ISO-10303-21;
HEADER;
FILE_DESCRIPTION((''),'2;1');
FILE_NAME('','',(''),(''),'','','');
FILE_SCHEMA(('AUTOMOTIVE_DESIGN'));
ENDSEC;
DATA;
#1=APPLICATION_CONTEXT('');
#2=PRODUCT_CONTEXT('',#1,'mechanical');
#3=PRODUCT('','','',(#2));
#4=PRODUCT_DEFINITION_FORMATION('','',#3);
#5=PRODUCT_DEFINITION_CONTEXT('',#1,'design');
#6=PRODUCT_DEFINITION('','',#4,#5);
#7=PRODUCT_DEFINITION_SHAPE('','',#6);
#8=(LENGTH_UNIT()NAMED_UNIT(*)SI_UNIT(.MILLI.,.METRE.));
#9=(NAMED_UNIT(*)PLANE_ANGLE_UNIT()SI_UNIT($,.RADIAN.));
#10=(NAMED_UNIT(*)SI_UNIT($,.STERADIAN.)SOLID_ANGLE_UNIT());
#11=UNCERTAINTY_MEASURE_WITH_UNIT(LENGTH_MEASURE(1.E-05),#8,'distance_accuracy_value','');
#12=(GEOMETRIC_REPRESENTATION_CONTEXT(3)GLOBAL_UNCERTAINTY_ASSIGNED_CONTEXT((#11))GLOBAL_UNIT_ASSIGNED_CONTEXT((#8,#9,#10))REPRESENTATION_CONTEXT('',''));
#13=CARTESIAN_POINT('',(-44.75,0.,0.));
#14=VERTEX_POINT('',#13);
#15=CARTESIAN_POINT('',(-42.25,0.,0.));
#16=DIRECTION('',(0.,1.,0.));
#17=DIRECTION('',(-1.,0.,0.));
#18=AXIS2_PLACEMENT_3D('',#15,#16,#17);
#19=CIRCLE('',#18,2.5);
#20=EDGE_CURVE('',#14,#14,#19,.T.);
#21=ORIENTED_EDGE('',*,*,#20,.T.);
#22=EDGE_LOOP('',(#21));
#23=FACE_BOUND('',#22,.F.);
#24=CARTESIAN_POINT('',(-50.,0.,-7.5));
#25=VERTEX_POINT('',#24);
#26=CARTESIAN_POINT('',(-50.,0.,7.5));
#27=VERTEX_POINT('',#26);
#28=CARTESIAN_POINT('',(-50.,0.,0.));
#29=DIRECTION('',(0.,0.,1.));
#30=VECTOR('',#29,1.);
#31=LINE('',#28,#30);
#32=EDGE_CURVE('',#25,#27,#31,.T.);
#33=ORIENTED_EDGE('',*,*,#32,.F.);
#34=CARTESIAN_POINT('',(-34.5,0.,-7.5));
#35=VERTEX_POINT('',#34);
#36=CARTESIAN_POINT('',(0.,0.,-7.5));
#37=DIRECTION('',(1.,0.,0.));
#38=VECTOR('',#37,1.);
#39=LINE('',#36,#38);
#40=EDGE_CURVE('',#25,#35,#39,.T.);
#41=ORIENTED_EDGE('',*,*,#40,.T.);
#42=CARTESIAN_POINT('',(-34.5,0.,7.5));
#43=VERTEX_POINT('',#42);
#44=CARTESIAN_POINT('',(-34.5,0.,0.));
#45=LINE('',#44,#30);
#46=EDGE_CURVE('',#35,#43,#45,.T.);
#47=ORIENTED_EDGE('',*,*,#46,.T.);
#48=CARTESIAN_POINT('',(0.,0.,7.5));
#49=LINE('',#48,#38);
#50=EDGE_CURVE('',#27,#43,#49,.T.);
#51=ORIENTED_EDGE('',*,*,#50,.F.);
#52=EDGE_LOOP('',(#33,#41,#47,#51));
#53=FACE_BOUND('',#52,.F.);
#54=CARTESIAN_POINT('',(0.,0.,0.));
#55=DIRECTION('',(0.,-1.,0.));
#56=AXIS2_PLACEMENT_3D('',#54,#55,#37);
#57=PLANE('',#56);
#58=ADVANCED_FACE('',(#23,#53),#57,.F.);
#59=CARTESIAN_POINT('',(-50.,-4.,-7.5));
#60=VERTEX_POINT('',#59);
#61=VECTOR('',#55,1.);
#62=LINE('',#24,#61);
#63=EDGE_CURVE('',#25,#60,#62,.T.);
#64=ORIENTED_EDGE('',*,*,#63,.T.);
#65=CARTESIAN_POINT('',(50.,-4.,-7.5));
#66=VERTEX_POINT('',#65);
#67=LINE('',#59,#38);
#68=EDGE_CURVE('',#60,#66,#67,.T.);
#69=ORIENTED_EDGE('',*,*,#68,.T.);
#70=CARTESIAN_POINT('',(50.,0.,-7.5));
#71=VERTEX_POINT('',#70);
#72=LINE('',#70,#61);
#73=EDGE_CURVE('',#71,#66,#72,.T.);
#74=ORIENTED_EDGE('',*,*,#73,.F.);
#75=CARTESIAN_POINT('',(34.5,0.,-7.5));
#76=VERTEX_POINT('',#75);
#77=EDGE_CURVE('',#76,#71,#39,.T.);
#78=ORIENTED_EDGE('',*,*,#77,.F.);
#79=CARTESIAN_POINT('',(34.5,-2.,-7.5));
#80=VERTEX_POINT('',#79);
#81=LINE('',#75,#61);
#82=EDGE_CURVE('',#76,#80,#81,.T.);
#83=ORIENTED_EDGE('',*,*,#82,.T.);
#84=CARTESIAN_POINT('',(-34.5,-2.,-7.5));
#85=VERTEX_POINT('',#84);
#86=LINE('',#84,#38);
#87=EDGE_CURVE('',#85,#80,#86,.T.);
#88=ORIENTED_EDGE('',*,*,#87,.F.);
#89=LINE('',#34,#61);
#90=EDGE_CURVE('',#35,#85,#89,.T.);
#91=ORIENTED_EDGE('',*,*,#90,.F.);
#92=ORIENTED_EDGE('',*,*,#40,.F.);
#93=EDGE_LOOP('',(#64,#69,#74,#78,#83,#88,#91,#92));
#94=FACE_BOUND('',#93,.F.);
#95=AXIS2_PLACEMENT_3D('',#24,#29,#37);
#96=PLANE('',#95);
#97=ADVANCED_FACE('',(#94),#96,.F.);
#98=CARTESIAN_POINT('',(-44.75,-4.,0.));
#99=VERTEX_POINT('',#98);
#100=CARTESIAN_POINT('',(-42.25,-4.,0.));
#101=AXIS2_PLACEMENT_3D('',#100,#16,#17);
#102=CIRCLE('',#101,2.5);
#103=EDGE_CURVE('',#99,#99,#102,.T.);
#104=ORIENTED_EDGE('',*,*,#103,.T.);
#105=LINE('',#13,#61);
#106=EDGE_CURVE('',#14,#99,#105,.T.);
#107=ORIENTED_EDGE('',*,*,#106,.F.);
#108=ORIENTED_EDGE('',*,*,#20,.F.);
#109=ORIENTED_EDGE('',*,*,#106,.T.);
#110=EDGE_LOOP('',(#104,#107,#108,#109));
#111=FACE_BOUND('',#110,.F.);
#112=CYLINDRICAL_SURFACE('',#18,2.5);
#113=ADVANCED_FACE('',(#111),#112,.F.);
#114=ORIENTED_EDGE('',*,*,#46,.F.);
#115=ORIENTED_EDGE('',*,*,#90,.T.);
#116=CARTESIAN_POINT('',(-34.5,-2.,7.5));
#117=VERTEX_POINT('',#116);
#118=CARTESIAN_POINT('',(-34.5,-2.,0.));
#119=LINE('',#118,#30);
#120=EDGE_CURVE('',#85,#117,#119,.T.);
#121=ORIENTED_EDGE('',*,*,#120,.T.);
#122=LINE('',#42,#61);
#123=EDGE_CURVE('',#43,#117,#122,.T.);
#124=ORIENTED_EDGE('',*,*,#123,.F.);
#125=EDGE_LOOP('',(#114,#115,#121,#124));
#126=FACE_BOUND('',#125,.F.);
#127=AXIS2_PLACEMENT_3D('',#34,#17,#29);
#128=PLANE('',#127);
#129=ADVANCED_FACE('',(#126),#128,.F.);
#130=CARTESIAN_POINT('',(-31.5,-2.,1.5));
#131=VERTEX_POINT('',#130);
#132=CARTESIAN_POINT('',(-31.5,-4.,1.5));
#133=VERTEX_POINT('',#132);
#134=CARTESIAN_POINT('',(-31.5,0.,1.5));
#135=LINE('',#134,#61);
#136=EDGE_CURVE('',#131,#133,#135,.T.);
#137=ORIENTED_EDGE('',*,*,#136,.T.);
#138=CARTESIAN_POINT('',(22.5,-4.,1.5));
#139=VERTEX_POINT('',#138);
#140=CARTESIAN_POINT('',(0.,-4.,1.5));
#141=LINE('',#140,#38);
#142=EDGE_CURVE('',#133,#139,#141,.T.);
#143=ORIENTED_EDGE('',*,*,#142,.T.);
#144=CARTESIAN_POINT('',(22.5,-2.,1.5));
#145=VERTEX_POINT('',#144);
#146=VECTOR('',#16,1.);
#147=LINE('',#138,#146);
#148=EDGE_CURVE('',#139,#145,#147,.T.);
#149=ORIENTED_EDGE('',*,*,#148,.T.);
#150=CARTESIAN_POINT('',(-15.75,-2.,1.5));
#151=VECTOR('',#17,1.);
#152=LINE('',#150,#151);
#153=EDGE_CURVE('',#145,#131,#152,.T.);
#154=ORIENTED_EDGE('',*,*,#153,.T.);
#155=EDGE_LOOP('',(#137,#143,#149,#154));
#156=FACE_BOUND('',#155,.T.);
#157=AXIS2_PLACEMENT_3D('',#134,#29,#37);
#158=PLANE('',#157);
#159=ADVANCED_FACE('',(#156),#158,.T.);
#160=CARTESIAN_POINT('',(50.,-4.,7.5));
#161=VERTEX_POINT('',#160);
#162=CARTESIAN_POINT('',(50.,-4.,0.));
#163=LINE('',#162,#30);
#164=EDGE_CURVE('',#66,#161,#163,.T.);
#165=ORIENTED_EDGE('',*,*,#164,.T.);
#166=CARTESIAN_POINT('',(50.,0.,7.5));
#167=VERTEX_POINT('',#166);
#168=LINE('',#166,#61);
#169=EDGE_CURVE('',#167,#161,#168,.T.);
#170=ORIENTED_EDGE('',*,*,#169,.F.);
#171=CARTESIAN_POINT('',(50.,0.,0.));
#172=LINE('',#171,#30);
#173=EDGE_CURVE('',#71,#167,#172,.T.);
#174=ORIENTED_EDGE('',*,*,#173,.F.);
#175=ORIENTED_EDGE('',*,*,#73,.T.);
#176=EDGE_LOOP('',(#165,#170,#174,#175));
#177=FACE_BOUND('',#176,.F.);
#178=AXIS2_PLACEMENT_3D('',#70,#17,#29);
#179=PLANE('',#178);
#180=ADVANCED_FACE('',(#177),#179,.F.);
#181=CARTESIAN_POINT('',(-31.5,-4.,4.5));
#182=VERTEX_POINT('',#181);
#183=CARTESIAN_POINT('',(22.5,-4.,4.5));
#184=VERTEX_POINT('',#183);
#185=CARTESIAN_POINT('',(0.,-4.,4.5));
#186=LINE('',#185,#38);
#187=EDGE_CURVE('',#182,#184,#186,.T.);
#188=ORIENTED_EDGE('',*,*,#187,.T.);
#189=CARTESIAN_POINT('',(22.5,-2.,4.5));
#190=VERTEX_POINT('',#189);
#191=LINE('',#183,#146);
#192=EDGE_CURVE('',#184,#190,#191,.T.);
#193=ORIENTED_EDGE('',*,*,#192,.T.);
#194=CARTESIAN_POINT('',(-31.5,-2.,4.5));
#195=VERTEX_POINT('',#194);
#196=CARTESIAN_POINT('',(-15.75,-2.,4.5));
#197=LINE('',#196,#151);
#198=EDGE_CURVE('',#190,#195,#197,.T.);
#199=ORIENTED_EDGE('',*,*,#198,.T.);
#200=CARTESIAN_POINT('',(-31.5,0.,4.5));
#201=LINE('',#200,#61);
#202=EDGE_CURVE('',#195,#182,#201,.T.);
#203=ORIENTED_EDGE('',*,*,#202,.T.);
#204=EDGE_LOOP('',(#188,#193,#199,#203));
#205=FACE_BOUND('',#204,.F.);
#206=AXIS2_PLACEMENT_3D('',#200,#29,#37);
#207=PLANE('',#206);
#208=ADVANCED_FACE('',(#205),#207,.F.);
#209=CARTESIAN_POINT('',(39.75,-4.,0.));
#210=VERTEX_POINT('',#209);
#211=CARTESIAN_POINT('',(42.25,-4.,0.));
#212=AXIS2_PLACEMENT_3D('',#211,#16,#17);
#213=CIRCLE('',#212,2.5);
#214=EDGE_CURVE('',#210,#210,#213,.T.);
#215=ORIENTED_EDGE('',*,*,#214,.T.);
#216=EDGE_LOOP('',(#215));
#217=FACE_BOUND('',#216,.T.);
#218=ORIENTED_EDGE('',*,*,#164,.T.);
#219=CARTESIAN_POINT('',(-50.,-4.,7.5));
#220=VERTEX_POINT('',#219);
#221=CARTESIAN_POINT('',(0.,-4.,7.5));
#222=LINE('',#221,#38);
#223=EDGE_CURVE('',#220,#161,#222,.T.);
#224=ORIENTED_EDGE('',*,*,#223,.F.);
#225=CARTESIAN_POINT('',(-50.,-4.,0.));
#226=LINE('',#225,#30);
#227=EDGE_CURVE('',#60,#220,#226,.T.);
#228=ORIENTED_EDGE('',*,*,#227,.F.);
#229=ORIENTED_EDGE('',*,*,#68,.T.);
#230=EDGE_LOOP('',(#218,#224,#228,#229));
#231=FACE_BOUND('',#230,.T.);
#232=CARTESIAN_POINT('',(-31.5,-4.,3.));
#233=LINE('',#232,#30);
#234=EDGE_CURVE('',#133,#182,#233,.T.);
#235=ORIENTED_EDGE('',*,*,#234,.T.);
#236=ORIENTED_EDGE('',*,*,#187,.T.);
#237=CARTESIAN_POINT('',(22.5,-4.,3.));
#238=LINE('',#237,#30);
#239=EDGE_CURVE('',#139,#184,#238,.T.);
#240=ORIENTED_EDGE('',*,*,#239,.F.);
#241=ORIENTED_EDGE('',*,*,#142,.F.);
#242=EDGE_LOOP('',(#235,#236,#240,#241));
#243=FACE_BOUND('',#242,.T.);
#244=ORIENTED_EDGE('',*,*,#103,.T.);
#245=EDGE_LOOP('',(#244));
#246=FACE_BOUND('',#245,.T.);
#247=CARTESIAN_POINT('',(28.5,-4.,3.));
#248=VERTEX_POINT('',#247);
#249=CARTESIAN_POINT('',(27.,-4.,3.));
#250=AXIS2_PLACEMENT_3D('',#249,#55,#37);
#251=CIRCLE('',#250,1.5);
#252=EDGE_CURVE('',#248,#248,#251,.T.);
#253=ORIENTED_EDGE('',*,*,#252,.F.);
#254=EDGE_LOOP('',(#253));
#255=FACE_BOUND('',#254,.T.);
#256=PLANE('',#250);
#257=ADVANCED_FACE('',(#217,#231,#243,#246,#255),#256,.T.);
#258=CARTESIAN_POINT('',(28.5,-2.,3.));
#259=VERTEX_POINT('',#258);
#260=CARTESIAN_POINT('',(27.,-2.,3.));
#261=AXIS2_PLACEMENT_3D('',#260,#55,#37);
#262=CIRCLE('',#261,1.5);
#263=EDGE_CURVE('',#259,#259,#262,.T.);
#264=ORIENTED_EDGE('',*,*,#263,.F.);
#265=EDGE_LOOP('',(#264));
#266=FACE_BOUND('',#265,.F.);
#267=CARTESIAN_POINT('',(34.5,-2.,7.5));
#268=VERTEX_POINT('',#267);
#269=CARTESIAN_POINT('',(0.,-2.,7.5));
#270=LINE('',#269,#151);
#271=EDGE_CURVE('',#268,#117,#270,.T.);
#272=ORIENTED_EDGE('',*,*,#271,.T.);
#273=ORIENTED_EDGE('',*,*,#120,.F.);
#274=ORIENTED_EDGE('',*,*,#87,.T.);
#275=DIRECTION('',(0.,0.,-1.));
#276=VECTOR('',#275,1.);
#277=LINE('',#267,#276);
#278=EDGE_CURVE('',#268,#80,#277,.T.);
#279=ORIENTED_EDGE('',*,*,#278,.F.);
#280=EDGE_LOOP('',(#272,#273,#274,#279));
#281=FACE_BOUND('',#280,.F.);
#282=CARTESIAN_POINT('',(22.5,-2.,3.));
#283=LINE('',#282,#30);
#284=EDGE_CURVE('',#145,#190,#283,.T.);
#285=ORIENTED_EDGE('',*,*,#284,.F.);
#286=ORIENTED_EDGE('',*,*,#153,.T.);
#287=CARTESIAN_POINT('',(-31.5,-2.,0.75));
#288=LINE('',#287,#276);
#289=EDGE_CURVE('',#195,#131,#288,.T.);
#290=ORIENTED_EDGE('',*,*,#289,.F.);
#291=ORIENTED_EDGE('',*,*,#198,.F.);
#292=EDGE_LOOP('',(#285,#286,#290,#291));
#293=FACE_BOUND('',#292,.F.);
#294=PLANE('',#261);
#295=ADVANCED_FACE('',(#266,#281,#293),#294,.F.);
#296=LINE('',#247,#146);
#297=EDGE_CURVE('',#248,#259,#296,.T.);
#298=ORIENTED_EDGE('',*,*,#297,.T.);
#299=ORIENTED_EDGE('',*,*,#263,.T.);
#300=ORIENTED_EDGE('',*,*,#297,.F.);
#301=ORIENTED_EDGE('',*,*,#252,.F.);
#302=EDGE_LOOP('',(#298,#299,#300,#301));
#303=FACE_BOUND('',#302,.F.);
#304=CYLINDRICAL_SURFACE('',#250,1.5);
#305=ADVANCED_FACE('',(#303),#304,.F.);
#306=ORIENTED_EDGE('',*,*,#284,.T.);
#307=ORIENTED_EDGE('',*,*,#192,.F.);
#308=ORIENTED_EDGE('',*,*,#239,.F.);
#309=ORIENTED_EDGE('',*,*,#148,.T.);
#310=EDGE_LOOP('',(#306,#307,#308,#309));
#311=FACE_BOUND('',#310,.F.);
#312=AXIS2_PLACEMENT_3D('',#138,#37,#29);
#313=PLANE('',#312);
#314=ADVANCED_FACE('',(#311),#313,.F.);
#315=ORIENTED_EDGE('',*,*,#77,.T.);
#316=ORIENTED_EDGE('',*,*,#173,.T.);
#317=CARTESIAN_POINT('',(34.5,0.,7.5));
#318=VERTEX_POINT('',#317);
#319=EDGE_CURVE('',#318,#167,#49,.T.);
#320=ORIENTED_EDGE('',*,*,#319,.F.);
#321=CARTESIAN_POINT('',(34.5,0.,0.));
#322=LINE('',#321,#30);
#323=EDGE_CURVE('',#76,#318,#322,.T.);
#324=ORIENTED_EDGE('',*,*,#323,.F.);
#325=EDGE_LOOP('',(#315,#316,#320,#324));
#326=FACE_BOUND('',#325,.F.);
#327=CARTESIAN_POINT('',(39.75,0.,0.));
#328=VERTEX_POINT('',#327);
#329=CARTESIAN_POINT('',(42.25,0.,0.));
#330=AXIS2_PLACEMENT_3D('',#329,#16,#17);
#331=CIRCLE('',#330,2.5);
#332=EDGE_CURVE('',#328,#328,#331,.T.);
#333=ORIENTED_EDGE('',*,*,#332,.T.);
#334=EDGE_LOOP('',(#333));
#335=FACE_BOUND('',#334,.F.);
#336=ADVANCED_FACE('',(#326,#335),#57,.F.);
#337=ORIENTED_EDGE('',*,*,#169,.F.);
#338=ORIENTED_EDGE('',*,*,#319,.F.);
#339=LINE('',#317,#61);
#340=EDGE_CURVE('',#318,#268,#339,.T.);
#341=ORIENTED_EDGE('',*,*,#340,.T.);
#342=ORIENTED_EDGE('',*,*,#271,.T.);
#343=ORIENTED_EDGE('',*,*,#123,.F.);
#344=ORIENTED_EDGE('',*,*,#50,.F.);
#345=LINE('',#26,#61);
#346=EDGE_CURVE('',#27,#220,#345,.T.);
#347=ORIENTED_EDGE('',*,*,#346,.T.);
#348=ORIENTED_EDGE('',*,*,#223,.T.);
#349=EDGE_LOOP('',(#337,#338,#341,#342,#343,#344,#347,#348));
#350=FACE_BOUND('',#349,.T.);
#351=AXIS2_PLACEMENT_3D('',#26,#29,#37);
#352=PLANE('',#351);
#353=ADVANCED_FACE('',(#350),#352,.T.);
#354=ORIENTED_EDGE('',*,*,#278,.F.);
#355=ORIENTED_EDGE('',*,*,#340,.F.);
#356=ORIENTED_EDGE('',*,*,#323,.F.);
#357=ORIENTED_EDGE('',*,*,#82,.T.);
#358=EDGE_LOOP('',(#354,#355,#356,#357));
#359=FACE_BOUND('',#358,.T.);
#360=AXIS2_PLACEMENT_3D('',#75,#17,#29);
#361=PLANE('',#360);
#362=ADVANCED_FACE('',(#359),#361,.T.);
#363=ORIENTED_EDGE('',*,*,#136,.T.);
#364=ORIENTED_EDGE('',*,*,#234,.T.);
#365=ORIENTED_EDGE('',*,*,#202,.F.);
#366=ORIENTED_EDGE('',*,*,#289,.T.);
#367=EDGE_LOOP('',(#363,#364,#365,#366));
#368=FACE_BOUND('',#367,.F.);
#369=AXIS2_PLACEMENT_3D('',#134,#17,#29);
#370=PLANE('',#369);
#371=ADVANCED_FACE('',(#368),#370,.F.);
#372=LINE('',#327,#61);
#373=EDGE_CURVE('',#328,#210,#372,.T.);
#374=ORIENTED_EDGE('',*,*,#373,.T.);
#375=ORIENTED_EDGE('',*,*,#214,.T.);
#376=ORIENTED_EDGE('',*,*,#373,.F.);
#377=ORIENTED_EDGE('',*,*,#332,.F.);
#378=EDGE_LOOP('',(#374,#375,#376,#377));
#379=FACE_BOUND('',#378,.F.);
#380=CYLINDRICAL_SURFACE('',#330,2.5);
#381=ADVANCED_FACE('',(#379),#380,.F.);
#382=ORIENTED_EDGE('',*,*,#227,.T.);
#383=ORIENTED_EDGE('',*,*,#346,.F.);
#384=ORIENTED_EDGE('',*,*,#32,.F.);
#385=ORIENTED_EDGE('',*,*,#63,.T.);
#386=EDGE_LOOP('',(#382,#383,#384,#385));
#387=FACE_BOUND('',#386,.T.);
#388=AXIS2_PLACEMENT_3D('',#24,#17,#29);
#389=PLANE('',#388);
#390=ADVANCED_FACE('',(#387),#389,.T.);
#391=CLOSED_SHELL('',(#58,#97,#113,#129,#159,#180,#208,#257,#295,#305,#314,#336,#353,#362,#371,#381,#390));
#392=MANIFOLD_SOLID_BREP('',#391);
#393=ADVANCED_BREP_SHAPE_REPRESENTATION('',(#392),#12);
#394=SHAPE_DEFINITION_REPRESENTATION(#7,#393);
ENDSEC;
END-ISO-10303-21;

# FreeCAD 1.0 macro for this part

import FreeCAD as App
import Part
import Sketcher
from FreeCAD import Vector


def add_polygon(sketch, points):
    """Adds a closed chain of lines whose ends are joined by coincident constraints."""
    first, n = sketch.GeometryCount, len(points)
    for a, b in zip(points, points[1:] + points[:1]):
        sketch.addGeometry(Part.LineSegment(App.Vector(*a, 0), App.Vector(*b, 0)), False)
    for i in range(n):
        sketch.addConstraint(Sketcher.Constraint("Coincident", first + i, 2, first + (i + 1) % n, 1))

doc = App.newDocument("Part")
body = doc.addObject("PartDesign::Body", "Body")

# Sketch on XZ plane
sketch1 = body.newObject("Sketcher::SketchObject", "Sketch")
sketch1.AttachmentSupport = (doc.getObject("XZ_Plane"), [""])
sketch1.MapMode = "FlatFace"
add_polygon(sketch1, [(-50, 7.5), (-50, -7.5), (50, -7.5), (50, 7.5)])  # lines 0-3
add_polygon(sketch1, [(31.5, -4.5), (-31.5, -4.5), (-31.5, -1.5), (31.5, -1.5)])  # lines 4-7
add_polygon(sketch1, [(31.5, 1.5), (-31.5, 1.5), (-31.5, 4.5), (31.5, 4.5)])  # lines 8-11
sketch1.addConstraint(Sketcher.Constraint("Vertical", 0))
sketch1.addConstraint(Sketcher.Constraint("Horizontal", 1))
sketch1.addConstraint(Sketcher.Constraint("Vertical", 2))
sketch1.addConstraint(Sketcher.Constraint("Horizontal", 3))
sketch1.addConstraint(Sketcher.Constraint("Horizontal", 4))
sketch1.addConstraint(Sketcher.Constraint("Vertical", 5))
sketch1.addConstraint(Sketcher.Constraint("Horizontal", 6))
sketch1.addConstraint(Sketcher.Constraint("Vertical", 7))
sketch1.addConstraint(Sketcher.Constraint("Horizontal", 8))
sketch1.addConstraint(Sketcher.Constraint("Vertical", 9))
sketch1.addConstraint(Sketcher.Constraint("Horizontal", 10))
sketch1.addConstraint(Sketcher.Constraint("Vertical", 11))
sketch1.addConstraint(Sketcher.Constraint("Symmetric", 0, 2, 2, 2, -1, 1))
sketch1.addConstraint(Sketcher.Constraint("Symmetric", 6, 2, 8, 2, -1, 1))
sketch1.addConstraint(Sketcher.Constraint("Symmetric", 4, 2, 10, 2, -1, 1))
sketch1.addConstraint(Sketcher.Constraint("Vertical", 5, 2, 8, 2))
sketch1.addConstraint(Sketcher.Constraint("DistanceX", 1, 1, 1, 2, 100.0))
sketch1.addConstraint(Sketcher.Constraint("DistanceX", 4, 2, 4, 1, 63.0))
sketch1.addConstraint(Sketcher.Constraint("DistanceY", 0, 2, 0, 1, 15.0))
sketch1.addConstraint(Sketcher.Constraint("DistanceY", 5, 1, 5, 2, 3.0))
sketch1.addConstraint(Sketcher.Constraint("DistanceY", 0, 2, 4, 2, 3.0))
pad1 = body.newObject("PartDesign::Pad", "Pad")
pad1.Profile = sketch1
pad1.Length = 4

# Sketch on XZ plane
sketch2 = body.newObject("Sketcher::SketchObject", "Sketch001")
sketch2.AttachmentSupport = (doc.getObject("XZ_Plane"), [""])
sketch2.MapMode = "FlatFace"
add_polygon(sketch2, [(34.5, 7.5), (34.5, -7.5), (-34.5, -7.5), (-34.5, 7.5)])  # lines 0-3
sketch2.addConstraint(Sketcher.Constraint("Vertical", 0))
sketch2.addConstraint(Sketcher.Constraint("Horizontal", 1))
sketch2.addConstraint(Sketcher.Constraint("Vertical", 2))
sketch2.addConstraint(Sketcher.Constraint("Horizontal", 3))
sketch2.addConstraint(Sketcher.Constraint("Symmetric", 0, 2, 2, 2, -1, 1))
sketch2.addConstraint(Sketcher.Constraint("DistanceX", 1, 2, 1, 1, 69.0))
sketch2.addConstraint(Sketcher.Constraint("DistanceY", 0, 2, 0, 1, 15.0))
pocket1 = body.newObject("PartDesign::Pocket", "Pocket")
pocket1.Profile = sketch2
pocket1.Length = 2
pocket1.Reversed = True

# Sketch on XZ plane
sketch3 = body.newObject("Sketcher::SketchObject", "Sketch002")
sketch3.AttachmentSupport = (doc.getObject("XZ_Plane"), [""])
sketch3.MapMode = "FlatFace"
sketch3.addGeometry(Part.Circle(Vector(42.25, 0, 0), Vector(0, 0, 1), 2.5), False)
sketch3.addConstraint(Sketcher.Constraint("PointOnObject", 0, 3, -1))
sketch3.addConstraint(Sketcher.Constraint("Diameter", 0, 5.0))
sketch3.addConstraint(Sketcher.Constraint("DistanceX", -1, 1, 0, 3, 42.25))
pocket2 = body.newObject("PartDesign::Pocket", "Pocket001")
pocket2.Profile = sketch3
pocket2.Length = 25
pocket2.Reversed = True

# Sketch on XZ plane
sketch4 = body.newObject("Sketcher::SketchObject", "Sketch003")
sketch4.AttachmentSupport = (doc.getObject("XZ_Plane"), [""])
sketch4.MapMode = "FlatFace"
sketch4.addGeometry(Part.Circle(Vector(-42.25, 0, 0), Vector(0, 0, 1), 2.5), False)
sketch4.addConstraint(Sketcher.Constraint("PointOnObject", 0, 3, -1))
sketch4.addConstraint(Sketcher.Constraint("Diameter", 0, 5.0))
sketch4.addConstraint(Sketcher.Constraint("DistanceX", 0, 3, -1, 1, 42.25))
pocket3 = body.newObject("PartDesign::Pocket", "Pocket002")
pocket3.Profile = sketch4
pocket3.Length = 25
pocket3.Reversed = True

# Sketch on XZ plane
sketch5 = body.newObject("Sketcher::SketchObject", "Sketch004")
sketch5.AttachmentSupport = (doc.getObject("XZ_Plane"), [""])
sketch5.MapMode = "FlatFace"
sketch5.AttachmentOffset = App.Placement(Vector(0, 0, 4), App.Rotation())
add_polygon(sketch5, [(22.5, 4.5), (22.5, 1.5), (31.5, 1.5), (31.5, 4.5)])  # lines 0-3
sketch5.addConstraint(Sketcher.Constraint("Vertical", 0))
sketch5.addConstraint(Sketcher.Constraint("Horizontal", 1))
sketch5.addConstraint(Sketcher.Constraint("Vertical", 2))
sketch5.addConstraint(Sketcher.Constraint("Horizontal", 3))
sketch5.addConstraint(Sketcher.Constraint("DistanceX", 1, 1, 1, 2, 9.0))
sketch5.addConstraint(Sketcher.Constraint("DistanceY", 0, 2, 0, 1, 3.0))
sketch5.addConstraint(Sketcher.Constraint("DistanceX", -1, 1, 0, 2, 22.5))
sketch5.addConstraint(Sketcher.Constraint("DistanceY", -1, 1, 0, 2, 1.5))
pad2 = body.newObject("PartDesign::Pad", "Pad001")
pad2.Profile = sketch5
pad2.Length = 2
pad2.Reversed = True

# Sketch on XZ plane
sketch6 = body.newObject("Sketcher::SketchObject", "Sketch005")
sketch6.AttachmentSupport = (doc.getObject("XZ_Plane"), [""])
sketch6.MapMode = "FlatFace"
sketch6.AttachmentOffset = App.Placement(Vector(0, 0, 4), App.Rotation())
sketch6.addGeometry(Part.Circle(Vector(27, 3, 0), Vector(0, 0, 1), 1.5), False)
sketch6.addConstraint(Sketcher.Constraint("Diameter", 0, 3.0))
sketch6.addConstraint(Sketcher.Constraint("DistanceX", -1, 1, 0, 3, 27.0))
sketch6.addConstraint(Sketcher.Constraint("DistanceY", -1, 1, 0, 3, 3.0))
pocket4 = body.newObject("PartDesign::Pocket", "Pocket003")
pocket4.Profile = sketch6
pocket4.Length = 25

# Sketch on XZ plane
sketch7 = body.newObject("Sketcher::SketchObject", "Sketch006")
sketch7.AttachmentSupport = (doc.getObject("XZ_Plane"), [""])
sketch7.MapMode = "FlatFace"
sketch7.AttachmentOffset = App.Placement(Vector(0, 0, 4), App.Rotation())
add_polygon(sketch7, [(-33.931892, 0), (-33.931892, -7.5), (34.950484, -7.5), (34.950484, 0)])  # lines 0-3
sketch7.addConstraint(Sketcher.Constraint("Vertical", 0))
sketch7.addConstraint(Sketcher.Constraint("Horizontal", 1))
sketch7.addConstraint(Sketcher.Constraint("Vertical", 2))
sketch7.addConstraint(Sketcher.Constraint("Horizontal", 3))
sketch7.addConstraint(Sketcher.Constraint("PointOnObject", 2, 2, -1))
sketch7.addConstraint(Sketcher.Constraint("DistanceY", 0, 2, 0, 1, 7.5))
sketch7.addConstraint(Sketcher.Constraint("DistanceX", 1, 1, 1, 2, 68.882376))
sketch7.addConstraint(Sketcher.Constraint("DistanceX", 0, 2, -1, 1, 33.931892))
pad3 = body.newObject("PartDesign::Pad", "Pad002")
pad3.Profile = sketch7
pad3.Length = 2
pad3.Reversed = True

doc.recompute()
